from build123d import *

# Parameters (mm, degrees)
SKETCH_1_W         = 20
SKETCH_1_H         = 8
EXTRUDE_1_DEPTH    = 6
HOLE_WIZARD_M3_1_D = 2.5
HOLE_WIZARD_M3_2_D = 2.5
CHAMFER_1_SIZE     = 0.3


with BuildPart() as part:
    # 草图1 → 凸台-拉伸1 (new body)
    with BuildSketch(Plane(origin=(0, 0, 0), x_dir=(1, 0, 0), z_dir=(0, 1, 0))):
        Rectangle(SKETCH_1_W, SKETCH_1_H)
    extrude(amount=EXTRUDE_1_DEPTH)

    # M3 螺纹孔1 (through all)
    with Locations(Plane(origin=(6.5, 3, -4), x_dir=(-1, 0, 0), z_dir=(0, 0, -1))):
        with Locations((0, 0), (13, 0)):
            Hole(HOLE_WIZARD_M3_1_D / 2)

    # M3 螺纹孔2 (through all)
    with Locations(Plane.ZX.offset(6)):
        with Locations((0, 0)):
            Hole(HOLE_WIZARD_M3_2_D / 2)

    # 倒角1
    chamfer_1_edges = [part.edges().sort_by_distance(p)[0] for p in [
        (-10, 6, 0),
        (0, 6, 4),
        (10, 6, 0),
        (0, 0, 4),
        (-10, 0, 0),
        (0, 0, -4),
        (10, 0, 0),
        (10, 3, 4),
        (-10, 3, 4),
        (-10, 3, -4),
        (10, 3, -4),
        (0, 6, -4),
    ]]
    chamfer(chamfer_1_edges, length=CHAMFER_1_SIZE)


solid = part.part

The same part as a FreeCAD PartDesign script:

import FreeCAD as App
import Part
import Sketcher
from FreeCAD import Vector


def edges_at(feature, points):
    """Names of the edges that pass closest to the given points."""
    edges = feature.Shape.Edges
    near = lambda p: min(range(len(edges)), key=lambda i: edges[i].distToShape(Part.Vertex(*p))[0])
    return sorted({f"Edge{near(p) + 1}" for p in points})

doc = App.newDocument("Part")
body = doc.addObject("PartDesign::Body", "Body")

sketch1 = body.newObject("Sketcher::SketchObject", "Sketch")
sketch1.AttachmentSupport = (doc.getObject("XZ_Plane"), [""])
sketch1.MapMode = "FlatFace"
sketch1.addGeometry(Part.LineSegment(Vector(-10, -4, 0), Vector(-10, 4, 0)), False)
sketch1.addGeometry(Part.LineSegment(Vector(-10, 4, 0), Vector(10, 4, 0)), False)
sketch1.addGeometry(Part.LineSegment(Vector(10, 4, 0), Vector(10, -4, 0)), False)
sketch1.addGeometry(Part.LineSegment(Vector(10, -4, 0), Vector(-10, -4, 0)), False)
sketch1.addConstraint(Sketcher.Constraint("Coincident", 0, 2, 1, 1))
sketch1.addConstraint(Sketcher.Constraint("Coincident", 1, 2, 2, 1))
sketch1.addConstraint(Sketcher.Constraint("Coincident", 2, 2, 3, 1))
sketch1.addConstraint(Sketcher.Constraint("Coincident", 3, 2, 0, 1))
sketch1.addConstraint(Sketcher.Constraint("Vertical", 0))
sketch1.addConstraint(Sketcher.Constraint("Horizontal", 1))
sketch1.addConstraint(Sketcher.Constraint("Vertical", 2))
sketch1.addConstraint(Sketcher.Constraint("Horizontal", 3))
sketch1.addConstraint(Sketcher.Constraint("Symmetric", 0, 2, 2, 2, -1, 1))
sketch1.addConstraint(Sketcher.Constraint("DistanceX", 1, 1, 1, 2, 20.0))
sketch1.addConstraint(Sketcher.Constraint("DistanceY", 0, 1, 0, 2, 8.0))
pad1 = body.newObject("PartDesign::Pad", "Pad")
pad1.Profile = sketch1
pad1.Length = 6
pad1.Reversed = True

sketch2 = body.newObject("Sketcher::SketchObject", "Sketch001")
sketch2.AttachmentSupport = (doc.getObject("XY_Plane"), [""])
sketch2.MapMode = "FlatFace"
sketch2.AttachmentOffset = App.Placement(Vector(0, 0, -4), App.Rotation())
sketch2.addGeometry(Part.Circle(Vector(6.5, 3, 0), Vector(0, 0, 1), 1.2), False)
sketch2.addGeometry(Part.Circle(Vector(-6.5, 3, 0), Vector(0, 0, 1), 1.2), False)
sketch2.addConstraint(Sketcher.Constraint("Equal", 0, 1))
sketch2.addConstraint(Sketcher.Constraint("Symmetric", 0, 3, 1, 3, -2))
sketch2.addConstraint(Sketcher.Constraint("Diameter", 0, 2.5))
sketch2.addConstraint(Sketcher.Constraint("DistanceY", -1, 1, 0, 3, 3.0))
sketch2.addConstraint(Sketcher.Constraint("DistanceX", 1, 3, 0, 3, 13.0))
doc.recompute()
hole = body.newObject("PartDesign::Hole", "Hole")
hole.Profile = sketch2
hole.ThreadType = "None"
hole.Diameter = 2.5
hole.DepthType = "ThroughAll"
hole.Reversed = True

sketch3 = body.newObject("Sketcher::SketchObject", "Sketch002")
sketch3.AttachmentSupport = (doc.getObject("XZ_Plane"), [""])
sketch3.MapMode = "FlatFace"
sketch3.AttachmentOffset = App.Placement(Vector(0, 0, -6), App.Rotation())
sketch3.addGeometry(Part.Circle(Vector(0, 0, 0), Vector(0, 0, 1), 1.2), False)
sketch3.addConstraint(Sketcher.Constraint("Coincident", 0, 3, -1, 1))
sketch3.addConstraint(Sketcher.Constraint("Diameter", 0, 2.5))
doc.recompute()
hole2 = body.newObject("PartDesign::Hole", "Hole001")
hole2.Profile = sketch3
hole2.ThreadType = "None"
hole2.Diameter = 2.5
hole2.DepthType = "ThroughAll"
hole2.Reversed = True
doc.recompute()

chamfer = body.newObject("PartDesign::Chamfer", "Chamfer")
chamfer.Base = (hole2, edges_at(hole2, [
    (-10, 6, 0),
    (0, 6, 4),
    (10, 6, 0),
    (0, 0, 4),
    (-10, 0, 0),
    (0, 0, -4),
    (10, 0, 0),
    (10, 3, 4),
    (-10, 3, 4),
    (-10, 3, -4),
    (10, 3, -4),
    (0, 6, -4),
]))
chamfer.Size = 0.3

doc.recompute()
